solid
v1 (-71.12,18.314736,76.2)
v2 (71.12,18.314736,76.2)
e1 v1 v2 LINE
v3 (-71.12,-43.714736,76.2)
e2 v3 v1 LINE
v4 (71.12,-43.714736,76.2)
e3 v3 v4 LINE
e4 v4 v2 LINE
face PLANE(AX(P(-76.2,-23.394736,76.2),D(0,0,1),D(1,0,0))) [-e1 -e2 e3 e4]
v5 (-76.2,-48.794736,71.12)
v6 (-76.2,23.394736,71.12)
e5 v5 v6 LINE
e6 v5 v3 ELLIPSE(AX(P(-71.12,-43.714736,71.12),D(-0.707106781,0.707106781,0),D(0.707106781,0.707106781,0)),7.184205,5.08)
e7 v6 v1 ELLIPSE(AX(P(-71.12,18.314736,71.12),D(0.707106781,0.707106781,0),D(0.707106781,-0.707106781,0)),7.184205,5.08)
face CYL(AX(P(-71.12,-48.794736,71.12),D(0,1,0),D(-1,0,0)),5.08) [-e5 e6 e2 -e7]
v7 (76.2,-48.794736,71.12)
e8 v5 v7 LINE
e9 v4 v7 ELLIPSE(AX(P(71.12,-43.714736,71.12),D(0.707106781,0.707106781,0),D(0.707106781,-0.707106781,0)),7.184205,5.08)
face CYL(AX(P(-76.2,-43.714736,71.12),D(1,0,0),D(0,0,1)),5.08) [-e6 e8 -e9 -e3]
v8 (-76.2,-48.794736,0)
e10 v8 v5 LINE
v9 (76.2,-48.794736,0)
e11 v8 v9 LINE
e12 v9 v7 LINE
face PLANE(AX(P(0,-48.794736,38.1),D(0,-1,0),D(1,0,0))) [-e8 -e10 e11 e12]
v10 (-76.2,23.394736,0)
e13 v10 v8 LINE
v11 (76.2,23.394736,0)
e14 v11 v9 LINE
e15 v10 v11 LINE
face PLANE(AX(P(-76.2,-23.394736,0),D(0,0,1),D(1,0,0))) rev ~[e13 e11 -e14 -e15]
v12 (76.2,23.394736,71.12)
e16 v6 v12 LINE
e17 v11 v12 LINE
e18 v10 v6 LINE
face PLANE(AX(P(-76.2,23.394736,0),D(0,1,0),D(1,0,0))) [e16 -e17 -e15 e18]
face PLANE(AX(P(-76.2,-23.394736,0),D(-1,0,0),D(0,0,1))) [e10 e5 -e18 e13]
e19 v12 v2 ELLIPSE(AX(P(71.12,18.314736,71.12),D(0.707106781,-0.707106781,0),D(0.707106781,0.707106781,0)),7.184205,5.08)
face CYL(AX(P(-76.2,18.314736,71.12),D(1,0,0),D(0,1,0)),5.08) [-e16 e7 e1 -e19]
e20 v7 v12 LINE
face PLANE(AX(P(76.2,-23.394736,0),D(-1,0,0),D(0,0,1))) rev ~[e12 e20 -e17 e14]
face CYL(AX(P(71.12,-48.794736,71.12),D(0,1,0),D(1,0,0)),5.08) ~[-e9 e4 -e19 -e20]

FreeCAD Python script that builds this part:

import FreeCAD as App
import Part
import Sketcher

V = App.Vector
Q = App.Units.Quantity


def edges_at(feature, points):
    """Names of the edges that pass closest to the given points."""
    edges = feature.Shape.Edges
    near = lambda p: min(range(len(edges)), key=lambda i: edges[i].distToShape(Part.Vertex(*p))[0])
    return sorted({f"Edge{near(p) + 1}" for p in points})

doc = App.newDocument("Part")
body = doc.addObject("PartDesign::Body", "Body")

sketch1 = body.newObject("Sketcher::SketchObject", "Sketch")
sketch1.AttachmentSupport = (doc.getObject("XY_Plane"), [""])
sketch1.MapMode = "FlatFace"
sketch1.addGeometry([
    Part.LineSegment(V(-76, 23, 0), V(-76, -23, 0)),
    Part.LineSegment(V(-76, -23, 0), V(76, -23, 0)),
    Part.LineSegment(V(76, -23, 0), V(76, 23, 0)),
    Part.LineSegment(V(76, 23, 0), V(-76, 23, 0)),
], False)
sketch1.addConstraint([
    Sketcher.Constraint("Coincident", 0, 2, 1, 1),
    Sketcher.Constraint("Coincident", 1, 2, 2, 1),
    Sketcher.Constraint("Coincident", 2, 2, 3, 1),
    Sketcher.Constraint("Coincident", 3, 2, 0, 1),
    Sketcher.Constraint("Vertical", 0),
    Sketcher.Constraint("Horizontal", 1),
    Sketcher.Constraint("Vertical", 2),
    Sketcher.Constraint("Horizontal", 3),
    Sketcher.Constraint("Symmetric", 0, 2, 2, 2, -1, 1),
    Sketcher.Constraint("DistanceX", 1, 1, 1, 2, Q("6 in")),
    Sketcher.Constraint("DistanceY", 0, 2, 0, 1, 46.789471),
])
pad1 = body.newObject("PartDesign::Pad", "Pad")
pad1.Profile = sketch1
pad1.Length = Q("3 in")

sketch2 = body.newObject("Sketcher::SketchObject", "Sketch001")
sketch2.AttachmentSupport = (doc.getObject("XZ_Plane"), [""])
sketch2.MapMode = "FlatFace"
sketch2.AttachmentOffset = App.Placement(V(0, 0, 23.394736), App.Rotation())
sketch2.addGeometry([
    Part.LineSegment(V(-76, 76, 0), V(-76, 0, 0)),
    Part.LineSegment(V(-76, 0, 0), V(76, 0, 0)),
    Part.LineSegment(V(76, 0, 0), V(76, 76, 0)),
    Part.LineSegment(V(76, 76, 0), V(-76, 76, 0)),
], False)
sketch2.addConstraint([
    Sketcher.Constraint("Coincident", 0, 2, 1, 1),
    Sketcher.Constraint("Coincident", 1, 2, 2, 1),
    Sketcher.Constraint("Coincident", 2, 2, 3, 1),
    Sketcher.Constraint("Coincident", 3, 2, 0, 1),
    Sketcher.Constraint("Vertical", 0),
    Sketcher.Constraint("Horizontal", 1),
    Sketcher.Constraint("Vertical", 2),
    Sketcher.Constraint("Horizontal", 3),
    Sketcher.Constraint("Symmetric", 0, 2, 1, 2, -1, 1),
    Sketcher.Constraint("DistanceX", 1, 1, 1, 2, Q("6 in")),
    Sketcher.Constraint("DistanceY", 0, 2, 0, 1, Q("3 in")),
])
pad2 = body.newObject("PartDesign::Pad", "Pad001")
pad2.Profile = sketch2
pad2.Length = Q("1 in")
doc.recompute()

fillet = body.newObject("PartDesign::Fillet", "Fillet")
fillet.Base = (pad2, edges_at(pad2, [
    (0, 23.395, 76.2),
    (-76.2, -12.7, 76.2),
    (0, -48.795, 76.2),
    (76.2, -12.7, 76.2),
]))
fillet.Radius = Q("0.2 in")

doc.recompute()
